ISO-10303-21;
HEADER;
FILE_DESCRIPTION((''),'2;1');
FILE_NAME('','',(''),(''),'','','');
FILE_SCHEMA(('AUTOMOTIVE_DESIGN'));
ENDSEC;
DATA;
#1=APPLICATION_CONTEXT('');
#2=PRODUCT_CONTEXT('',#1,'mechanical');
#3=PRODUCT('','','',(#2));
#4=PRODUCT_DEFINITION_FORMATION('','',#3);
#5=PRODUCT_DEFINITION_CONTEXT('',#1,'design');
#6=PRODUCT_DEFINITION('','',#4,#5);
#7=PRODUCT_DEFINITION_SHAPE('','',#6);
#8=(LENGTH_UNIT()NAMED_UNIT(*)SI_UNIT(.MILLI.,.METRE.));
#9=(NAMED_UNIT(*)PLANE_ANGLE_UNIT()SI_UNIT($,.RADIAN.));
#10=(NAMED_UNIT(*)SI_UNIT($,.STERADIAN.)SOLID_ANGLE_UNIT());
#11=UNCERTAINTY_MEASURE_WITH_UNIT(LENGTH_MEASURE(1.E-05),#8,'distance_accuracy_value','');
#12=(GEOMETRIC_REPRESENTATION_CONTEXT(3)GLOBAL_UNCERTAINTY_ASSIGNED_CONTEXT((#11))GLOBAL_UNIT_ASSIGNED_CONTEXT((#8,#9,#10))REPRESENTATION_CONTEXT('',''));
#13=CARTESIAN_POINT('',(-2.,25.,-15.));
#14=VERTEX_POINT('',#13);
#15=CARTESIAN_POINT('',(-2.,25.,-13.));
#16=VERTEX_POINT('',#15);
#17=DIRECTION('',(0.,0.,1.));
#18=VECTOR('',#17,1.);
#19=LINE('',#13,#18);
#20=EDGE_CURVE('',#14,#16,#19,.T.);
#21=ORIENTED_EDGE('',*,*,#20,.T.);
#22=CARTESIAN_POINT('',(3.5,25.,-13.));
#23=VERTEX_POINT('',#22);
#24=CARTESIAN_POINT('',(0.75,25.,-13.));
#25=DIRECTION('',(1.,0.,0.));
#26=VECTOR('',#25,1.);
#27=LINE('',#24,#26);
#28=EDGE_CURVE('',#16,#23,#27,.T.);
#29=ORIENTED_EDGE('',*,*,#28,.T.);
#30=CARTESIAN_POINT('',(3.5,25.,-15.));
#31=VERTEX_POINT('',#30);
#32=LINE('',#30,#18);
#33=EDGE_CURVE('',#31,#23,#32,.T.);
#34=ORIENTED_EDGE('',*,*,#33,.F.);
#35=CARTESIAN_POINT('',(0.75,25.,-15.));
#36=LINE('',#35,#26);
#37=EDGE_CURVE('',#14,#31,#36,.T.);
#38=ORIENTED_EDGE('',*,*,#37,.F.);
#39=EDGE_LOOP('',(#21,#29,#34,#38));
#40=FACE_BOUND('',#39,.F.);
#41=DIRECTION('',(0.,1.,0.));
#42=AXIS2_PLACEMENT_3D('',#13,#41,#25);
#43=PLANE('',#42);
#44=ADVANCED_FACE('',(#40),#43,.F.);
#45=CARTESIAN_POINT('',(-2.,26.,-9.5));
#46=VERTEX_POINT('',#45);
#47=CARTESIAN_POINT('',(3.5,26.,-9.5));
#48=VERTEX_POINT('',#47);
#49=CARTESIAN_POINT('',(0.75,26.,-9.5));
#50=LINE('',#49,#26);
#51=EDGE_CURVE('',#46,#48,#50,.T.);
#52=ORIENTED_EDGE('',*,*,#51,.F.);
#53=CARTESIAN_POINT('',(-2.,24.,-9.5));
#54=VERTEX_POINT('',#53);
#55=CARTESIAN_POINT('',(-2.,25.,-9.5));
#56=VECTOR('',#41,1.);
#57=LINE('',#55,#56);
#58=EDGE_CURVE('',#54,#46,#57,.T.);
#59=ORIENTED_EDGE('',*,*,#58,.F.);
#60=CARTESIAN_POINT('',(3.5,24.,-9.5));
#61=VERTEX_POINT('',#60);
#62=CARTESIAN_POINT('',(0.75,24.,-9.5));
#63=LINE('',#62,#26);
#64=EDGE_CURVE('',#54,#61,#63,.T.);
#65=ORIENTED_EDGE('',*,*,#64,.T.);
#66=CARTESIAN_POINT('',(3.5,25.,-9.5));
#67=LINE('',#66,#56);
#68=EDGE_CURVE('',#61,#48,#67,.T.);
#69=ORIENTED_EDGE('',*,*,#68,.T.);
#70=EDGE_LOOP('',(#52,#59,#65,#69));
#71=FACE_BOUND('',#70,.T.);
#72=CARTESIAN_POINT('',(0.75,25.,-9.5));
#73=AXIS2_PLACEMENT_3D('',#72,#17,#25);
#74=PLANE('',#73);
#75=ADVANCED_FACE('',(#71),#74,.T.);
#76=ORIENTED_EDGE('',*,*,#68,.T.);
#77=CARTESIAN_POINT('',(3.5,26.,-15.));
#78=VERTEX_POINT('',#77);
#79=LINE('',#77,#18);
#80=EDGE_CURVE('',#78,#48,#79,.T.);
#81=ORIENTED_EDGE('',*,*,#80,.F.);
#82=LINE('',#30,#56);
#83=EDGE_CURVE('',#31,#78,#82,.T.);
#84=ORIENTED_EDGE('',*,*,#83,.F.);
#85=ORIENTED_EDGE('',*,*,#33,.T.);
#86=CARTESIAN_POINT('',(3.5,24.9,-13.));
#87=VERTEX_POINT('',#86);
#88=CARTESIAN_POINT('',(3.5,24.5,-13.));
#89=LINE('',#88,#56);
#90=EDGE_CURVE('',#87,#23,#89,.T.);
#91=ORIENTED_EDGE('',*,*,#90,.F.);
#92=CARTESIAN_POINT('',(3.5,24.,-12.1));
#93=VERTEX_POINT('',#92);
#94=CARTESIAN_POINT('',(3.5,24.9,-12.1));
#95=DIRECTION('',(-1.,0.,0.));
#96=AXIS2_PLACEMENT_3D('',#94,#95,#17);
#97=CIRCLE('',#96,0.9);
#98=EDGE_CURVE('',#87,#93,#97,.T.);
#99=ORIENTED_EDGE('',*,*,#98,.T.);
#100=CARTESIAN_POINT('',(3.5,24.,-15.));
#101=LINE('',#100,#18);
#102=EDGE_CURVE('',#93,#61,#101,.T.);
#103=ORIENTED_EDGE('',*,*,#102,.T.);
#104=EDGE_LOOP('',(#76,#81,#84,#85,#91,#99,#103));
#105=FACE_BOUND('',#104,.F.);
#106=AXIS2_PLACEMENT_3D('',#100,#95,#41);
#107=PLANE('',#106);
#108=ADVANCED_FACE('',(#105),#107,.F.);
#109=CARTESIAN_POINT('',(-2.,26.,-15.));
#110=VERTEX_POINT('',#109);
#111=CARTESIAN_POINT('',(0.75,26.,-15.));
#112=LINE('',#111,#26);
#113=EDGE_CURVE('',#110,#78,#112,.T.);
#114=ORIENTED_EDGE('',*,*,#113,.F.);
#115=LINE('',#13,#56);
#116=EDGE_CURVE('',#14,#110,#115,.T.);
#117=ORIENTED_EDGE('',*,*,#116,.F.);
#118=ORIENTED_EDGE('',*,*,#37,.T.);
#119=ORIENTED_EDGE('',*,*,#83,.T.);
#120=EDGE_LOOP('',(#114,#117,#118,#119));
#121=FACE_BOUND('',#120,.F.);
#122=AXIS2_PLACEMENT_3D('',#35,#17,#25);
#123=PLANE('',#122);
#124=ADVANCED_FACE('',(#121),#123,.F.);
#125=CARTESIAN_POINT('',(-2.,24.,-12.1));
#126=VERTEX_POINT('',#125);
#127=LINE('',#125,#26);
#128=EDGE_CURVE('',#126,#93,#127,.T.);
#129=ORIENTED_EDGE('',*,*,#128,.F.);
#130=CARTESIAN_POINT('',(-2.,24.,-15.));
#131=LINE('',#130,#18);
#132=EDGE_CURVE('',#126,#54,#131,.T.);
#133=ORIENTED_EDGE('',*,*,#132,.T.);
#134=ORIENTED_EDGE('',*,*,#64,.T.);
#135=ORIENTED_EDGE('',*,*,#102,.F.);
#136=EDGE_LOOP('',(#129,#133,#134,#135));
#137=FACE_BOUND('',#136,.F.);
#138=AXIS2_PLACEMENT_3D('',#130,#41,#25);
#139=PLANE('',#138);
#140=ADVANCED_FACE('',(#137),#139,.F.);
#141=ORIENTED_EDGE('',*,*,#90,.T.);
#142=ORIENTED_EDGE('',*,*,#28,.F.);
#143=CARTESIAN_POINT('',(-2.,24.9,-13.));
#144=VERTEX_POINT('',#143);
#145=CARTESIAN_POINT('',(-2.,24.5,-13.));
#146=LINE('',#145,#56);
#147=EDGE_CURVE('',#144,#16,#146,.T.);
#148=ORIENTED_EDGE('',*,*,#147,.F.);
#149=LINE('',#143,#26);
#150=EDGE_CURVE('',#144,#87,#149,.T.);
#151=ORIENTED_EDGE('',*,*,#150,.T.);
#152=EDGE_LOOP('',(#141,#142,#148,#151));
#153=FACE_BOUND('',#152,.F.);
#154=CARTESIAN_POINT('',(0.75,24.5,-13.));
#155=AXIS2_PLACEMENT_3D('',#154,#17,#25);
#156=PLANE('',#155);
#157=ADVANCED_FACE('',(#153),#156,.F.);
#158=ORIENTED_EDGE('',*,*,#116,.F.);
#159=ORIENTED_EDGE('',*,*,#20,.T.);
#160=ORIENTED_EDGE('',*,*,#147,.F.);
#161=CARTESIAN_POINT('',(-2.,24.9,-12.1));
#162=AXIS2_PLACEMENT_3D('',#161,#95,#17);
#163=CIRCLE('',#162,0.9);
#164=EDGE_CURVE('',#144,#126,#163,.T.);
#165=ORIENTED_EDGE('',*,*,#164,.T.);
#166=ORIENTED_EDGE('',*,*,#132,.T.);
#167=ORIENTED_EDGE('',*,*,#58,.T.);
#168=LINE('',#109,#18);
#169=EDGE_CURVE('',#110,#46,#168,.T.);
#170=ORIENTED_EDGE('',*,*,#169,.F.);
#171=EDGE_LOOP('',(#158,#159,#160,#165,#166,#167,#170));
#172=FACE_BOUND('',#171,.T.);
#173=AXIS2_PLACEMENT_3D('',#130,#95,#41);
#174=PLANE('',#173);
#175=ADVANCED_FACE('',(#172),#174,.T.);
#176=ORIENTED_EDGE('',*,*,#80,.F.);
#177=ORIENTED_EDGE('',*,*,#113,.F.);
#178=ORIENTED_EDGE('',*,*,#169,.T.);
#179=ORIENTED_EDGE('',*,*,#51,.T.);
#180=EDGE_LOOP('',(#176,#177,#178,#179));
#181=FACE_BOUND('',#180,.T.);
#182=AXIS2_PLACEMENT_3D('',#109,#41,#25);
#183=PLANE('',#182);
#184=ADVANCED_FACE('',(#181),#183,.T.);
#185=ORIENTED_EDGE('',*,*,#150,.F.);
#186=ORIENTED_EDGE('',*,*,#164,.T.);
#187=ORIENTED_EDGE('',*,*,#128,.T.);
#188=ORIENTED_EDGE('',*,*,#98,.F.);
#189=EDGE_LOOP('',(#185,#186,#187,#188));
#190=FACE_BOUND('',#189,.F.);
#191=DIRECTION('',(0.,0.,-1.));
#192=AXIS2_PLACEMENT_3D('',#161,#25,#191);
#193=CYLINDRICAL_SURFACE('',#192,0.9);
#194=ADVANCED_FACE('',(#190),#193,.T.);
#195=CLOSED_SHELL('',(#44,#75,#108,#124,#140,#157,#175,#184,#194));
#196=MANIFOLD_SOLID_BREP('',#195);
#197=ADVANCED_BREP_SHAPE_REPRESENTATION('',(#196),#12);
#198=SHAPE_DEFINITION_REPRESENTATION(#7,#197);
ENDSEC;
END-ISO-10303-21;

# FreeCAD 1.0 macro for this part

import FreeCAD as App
import Part
import Sketcher

V = App.Vector
Q = App.Units.Quantity


def edges_at(feature, points):
    """Names of the edges that pass closest to the given points."""
    edges = feature.Shape.Edges
    near = lambda p: min(range(len(edges)), key=lambda i: edges[i].distToShape(Part.Vertex(*p))[0])
    return sorted({f"Edge{near(p) + 1}" for p in points})

doc = App.newDocument("Part")
body = doc.addObject("PartDesign::Body", "Body")

# Sketch on XY plane
sketch1 = doc.addObject("Sketcher::SketchObject", "Sketch")
body.addObject(sketch1)
sketch1.AttachmentSupport = (doc.XY_Plane, [""])
sketch1.MapMode = "FlatFace"
sketch1.AttachmentOffset = App.Placement(V(0, 0, -15), App.Rotation())
sketch1.addGeometry([
    Part.LineSegment(V(5, 25, 0), V(5, 24, 0)),
    Part.LineSegment(V(5, 24, 0), V(10.5, 24, 0)),
    Part.LineSegment(V(10.5, 24, 0), V(10.5, 25, 0)),
    Part.LineSegment(V(10.5, 25, 0), V(5, 25, 0)),
], False)
sketch1.addConstraint([
    Sketcher.Constraint("Coincident", 0, 2, 1, 1),
    Sketcher.Constraint("Coincident", 1, 2, 2, 1),
    Sketcher.Constraint("Coincident", 2, 2, 3, 1),
    Sketcher.Constraint("Coincident", 3, 2, 0, 1),
    Sketcher.Constraint("Vertical", 0),
    Sketcher.Constraint("Horizontal", 1),
    Sketcher.Constraint("Vertical", 2),
    Sketcher.Constraint("Horizontal", 3),
    Sketcher.Constraint("DistanceY", 0, 2, 0, 1, Q("1 mm")),
    Sketcher.Constraint("DistanceX", 1, 1, 1, 2, Q("5.5 mm")),
    Sketcher.Constraint("DistanceX", -1, 1, 0, 2, Q("5 mm")),
    Sketcher.Constraint("DistanceY", -1, 1, 0, 2, Q("24 mm")),
])
pad1 = doc.addObject("PartDesign::Pad", "Pad")
body.addObject(pad1)
pad1.Profile = sketch1
pad1.Length = 2
body2 = doc.addObject("PartDesign::Body", "Body001")

# Sketch on XY plane
sketch2 = doc.addObject("Sketcher::SketchObject", "Sketch001")
body2.addObject(sketch2)
sketch2.AttachmentSupport = (doc.getObject("XY_Plane001"), [""])
sketch2.MapMode = "FlatFace"
sketch2.AttachmentOffset = App.Placement(V(0, 0, -15), App.Rotation())
sketch2.addGeometry([
    Part.LineSegment(V(5, 26, 0), V(5, 24, 0)),
    Part.LineSegment(V(5, 24, 0), V(10.5, 24, 0)),
    Part.LineSegment(V(10.5, 24, 0), V(10.5, 26, 0)),
    Part.LineSegment(V(10.5, 26, 0), V(5, 26, 0)),
], False)
sketch2.addConstraint([
    Sketcher.Constraint("Coincident", 0, 2, 1, 1),
    Sketcher.Constraint("Coincident", 1, 2, 2, 1),
    Sketcher.Constraint("Coincident", 2, 2, 3, 1),
    Sketcher.Constraint("Coincident", 3, 2, 0, 1),
    Sketcher.Constraint("Vertical", 0),
    Sketcher.Constraint("Horizontal", 1),
    Sketcher.Constraint("Vertical", 2),
    Sketcher.Constraint("Horizontal", 3),
    Sketcher.Constraint("DistanceY", 0, 2, 0, 1, Q("2 mm")),
    Sketcher.Constraint("DistanceX", 1, 1, 1, 2, Q("5.5 mm")),
    Sketcher.Constraint("DistanceX", -1, 1, 0, 2, Q("5 mm")),
    Sketcher.Constraint("DistanceY", -1, 1, 0, 2, Q("24 mm")),
])
pad2 = doc.addObject("PartDesign::Pad", "Pad001")
body2.addObject(pad2)
pad2.Profile = sketch2
pad2.Length = 5.5
doc.recompute()

boolean = doc.addObject("PartDesign::Boolean", "Boolean")
body2.addObject(boolean)
boolean.Type = "Cut"
boolean.addObjects([body])
doc.recompute()

fillet = doc.addObject("PartDesign::Fillet", "Fillet")
body2.addObject(fillet)
fillet.Base = (boolean, edges_at(boolean, [(7.75, 24, -13)]))
fillet.Radius = 0.9
body3 = doc.addObject("PartDesign::Body", "Body002")
doc.recompute()

body2.Placement = App.Placement(V(-7, 0, 0), App.Rotation(V(0, 0, 1), 0))
boolean2 = doc.addObject("PartDesign::Boolean", "Boolean001")
body3.addObject(boolean2)
boolean2.Type = "Fuse"
boolean2.addObjects([body2])

doc.recompute()
